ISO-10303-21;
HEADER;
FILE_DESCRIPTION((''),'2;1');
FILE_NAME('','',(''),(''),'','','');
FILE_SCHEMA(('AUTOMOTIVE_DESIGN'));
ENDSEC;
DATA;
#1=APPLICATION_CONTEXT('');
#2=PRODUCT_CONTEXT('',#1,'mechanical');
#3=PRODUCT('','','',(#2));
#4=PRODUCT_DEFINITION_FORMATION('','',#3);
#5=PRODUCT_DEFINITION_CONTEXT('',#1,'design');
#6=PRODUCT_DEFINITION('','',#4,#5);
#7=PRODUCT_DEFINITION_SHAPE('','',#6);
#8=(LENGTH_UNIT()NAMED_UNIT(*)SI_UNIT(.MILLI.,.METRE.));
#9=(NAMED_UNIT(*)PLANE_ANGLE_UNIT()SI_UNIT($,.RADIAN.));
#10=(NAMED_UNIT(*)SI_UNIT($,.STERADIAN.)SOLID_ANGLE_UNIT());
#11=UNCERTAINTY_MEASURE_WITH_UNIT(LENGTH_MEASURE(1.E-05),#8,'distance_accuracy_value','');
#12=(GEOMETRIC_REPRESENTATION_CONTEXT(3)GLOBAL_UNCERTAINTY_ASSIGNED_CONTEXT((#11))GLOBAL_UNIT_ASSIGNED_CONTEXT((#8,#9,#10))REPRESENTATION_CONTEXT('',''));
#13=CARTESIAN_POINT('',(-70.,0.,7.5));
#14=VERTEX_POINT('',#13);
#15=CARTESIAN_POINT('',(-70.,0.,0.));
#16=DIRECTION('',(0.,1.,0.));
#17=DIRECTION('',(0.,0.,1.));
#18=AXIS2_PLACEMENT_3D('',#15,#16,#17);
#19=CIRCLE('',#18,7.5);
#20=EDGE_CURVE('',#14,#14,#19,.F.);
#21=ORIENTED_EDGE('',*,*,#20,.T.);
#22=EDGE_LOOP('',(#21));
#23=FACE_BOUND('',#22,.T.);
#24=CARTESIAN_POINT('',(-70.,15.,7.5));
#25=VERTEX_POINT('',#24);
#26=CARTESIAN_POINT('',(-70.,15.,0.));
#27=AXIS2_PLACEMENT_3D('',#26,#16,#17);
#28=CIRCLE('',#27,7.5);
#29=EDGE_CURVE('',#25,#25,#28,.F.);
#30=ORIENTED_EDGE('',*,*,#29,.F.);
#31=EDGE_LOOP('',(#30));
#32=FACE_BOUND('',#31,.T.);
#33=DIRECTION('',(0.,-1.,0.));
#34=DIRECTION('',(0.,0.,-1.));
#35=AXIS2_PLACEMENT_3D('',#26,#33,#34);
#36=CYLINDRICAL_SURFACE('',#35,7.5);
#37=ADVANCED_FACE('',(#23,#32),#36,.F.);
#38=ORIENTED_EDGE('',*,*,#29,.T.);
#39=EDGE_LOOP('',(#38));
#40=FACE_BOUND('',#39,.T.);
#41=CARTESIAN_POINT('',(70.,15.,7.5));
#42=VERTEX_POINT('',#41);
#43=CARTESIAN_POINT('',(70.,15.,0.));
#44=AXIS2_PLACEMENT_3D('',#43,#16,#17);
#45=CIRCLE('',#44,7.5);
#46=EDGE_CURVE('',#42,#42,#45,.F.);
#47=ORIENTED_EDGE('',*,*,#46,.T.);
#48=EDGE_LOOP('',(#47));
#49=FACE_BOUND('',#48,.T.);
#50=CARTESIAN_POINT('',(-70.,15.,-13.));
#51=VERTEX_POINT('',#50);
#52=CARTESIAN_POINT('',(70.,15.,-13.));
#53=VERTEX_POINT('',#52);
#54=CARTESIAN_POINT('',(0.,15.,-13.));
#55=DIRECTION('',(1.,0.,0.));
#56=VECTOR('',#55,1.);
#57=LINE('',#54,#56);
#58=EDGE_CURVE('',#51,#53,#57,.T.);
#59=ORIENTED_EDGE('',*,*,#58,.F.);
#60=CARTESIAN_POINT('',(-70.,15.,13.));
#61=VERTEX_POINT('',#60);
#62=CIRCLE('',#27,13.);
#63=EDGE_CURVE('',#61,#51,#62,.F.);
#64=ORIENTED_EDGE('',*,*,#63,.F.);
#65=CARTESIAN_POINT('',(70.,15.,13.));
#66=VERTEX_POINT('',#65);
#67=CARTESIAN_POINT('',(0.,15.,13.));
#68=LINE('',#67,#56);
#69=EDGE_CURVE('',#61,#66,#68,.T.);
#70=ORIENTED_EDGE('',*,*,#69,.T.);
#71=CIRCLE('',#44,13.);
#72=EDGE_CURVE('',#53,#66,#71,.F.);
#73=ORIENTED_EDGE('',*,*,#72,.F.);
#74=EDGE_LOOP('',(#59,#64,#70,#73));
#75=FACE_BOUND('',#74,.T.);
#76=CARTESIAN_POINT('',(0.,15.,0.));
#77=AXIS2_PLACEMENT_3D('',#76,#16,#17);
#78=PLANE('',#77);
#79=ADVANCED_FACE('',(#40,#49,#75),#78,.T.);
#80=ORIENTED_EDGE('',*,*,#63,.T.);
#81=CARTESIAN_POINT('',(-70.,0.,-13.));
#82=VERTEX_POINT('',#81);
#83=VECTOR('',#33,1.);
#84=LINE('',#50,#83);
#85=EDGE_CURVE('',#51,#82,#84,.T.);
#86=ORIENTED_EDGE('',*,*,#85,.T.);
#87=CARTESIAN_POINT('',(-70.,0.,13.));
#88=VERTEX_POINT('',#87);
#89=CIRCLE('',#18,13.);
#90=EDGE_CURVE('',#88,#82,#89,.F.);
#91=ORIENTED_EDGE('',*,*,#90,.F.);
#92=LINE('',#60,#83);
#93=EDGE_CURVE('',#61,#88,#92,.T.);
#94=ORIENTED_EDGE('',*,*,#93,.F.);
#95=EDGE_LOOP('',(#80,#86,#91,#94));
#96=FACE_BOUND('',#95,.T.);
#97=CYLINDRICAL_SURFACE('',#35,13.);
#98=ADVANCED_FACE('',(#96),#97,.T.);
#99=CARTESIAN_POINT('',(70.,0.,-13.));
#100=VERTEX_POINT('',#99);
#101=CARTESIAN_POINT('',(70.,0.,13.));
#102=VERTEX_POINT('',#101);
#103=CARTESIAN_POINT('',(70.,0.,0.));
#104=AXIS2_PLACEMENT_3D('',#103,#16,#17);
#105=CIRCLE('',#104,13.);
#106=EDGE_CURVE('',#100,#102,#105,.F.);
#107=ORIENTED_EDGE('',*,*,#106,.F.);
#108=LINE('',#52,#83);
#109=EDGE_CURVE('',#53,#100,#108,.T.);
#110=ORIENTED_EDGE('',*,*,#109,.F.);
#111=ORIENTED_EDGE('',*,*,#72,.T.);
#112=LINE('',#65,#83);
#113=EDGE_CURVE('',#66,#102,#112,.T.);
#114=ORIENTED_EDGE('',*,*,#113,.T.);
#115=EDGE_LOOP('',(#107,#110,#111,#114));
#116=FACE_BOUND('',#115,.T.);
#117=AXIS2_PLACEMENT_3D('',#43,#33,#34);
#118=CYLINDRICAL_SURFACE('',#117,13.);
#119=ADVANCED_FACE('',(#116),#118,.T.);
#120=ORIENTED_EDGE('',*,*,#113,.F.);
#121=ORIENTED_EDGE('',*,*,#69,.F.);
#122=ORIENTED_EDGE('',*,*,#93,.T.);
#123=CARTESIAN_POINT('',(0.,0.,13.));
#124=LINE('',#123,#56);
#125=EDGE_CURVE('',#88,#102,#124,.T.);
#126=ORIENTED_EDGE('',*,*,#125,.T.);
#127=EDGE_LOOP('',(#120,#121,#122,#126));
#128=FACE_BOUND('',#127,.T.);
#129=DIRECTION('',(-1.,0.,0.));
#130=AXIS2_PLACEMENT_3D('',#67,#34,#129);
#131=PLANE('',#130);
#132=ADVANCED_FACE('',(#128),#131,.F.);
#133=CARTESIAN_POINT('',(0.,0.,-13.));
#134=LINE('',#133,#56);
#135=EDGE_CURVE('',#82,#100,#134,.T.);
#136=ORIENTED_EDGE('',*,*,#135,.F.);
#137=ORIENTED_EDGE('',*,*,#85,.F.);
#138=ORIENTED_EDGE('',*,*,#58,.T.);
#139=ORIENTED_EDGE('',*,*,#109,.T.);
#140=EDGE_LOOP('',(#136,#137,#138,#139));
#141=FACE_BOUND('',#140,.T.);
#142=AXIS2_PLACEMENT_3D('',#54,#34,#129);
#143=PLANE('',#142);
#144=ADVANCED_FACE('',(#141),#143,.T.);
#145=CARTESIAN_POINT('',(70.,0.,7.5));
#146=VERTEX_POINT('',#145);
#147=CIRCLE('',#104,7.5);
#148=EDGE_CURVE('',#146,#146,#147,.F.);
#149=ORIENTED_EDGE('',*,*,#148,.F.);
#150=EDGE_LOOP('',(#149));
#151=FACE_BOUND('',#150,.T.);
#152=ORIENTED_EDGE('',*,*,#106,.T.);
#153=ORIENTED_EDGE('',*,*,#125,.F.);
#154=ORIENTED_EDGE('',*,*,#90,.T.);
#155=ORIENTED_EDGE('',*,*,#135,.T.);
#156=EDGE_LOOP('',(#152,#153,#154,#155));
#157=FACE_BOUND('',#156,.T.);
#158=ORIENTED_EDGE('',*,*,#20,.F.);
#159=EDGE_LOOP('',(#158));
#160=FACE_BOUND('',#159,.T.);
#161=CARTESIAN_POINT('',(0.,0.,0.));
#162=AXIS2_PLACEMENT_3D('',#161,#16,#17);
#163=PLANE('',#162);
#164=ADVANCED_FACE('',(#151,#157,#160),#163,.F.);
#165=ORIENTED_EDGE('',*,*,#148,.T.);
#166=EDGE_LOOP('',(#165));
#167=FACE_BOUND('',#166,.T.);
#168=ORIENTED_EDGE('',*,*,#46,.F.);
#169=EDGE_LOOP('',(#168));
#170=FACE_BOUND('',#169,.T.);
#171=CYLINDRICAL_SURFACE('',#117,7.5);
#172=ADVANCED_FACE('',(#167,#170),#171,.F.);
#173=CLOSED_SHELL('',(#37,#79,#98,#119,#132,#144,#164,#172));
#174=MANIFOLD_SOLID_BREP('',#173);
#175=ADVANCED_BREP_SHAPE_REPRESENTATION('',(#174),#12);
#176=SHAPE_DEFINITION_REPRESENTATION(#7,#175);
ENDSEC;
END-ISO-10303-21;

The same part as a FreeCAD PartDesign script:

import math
import FreeCAD as App
import Part
import Sketcher

V = App.Vector
Q = App.Units.Quantity

doc = App.newDocument("Part")
body = doc.addObject("PartDesign::Body", "Body")

# Sketch on XZ plane
sketch1 = body.newObject("Sketcher::SketchObject", "Sketch")
sketch1.AttachmentSupport = (doc.getObject("XZ_Plane"), [""])
sketch1.MapMode = "FlatFace"
sketch1.addGeometry(Part.LineSegment(V(70, 13, 0), V(-70, 13, 0)), False)
sketch1.addGeometry(Part.ArcOfCircle(Part.Circle(V(-70, 0, 0), V(0, 0, 1), 13), math.radians(90), math.radians(270)), False)
sketch1.addGeometry(Part.LineSegment(V(-70, -13, 0), V(70, -13, 0)), False)
sketch1.addGeometry(Part.ArcOfCircle(Part.Circle(V(70, 0, 0), V(0, 0, 1), 13), math.radians(-90), math.radians(90)), False)
sketch1.addGeometry(Part.Circle(V(70, 0, 0), V(0, 0, 1), 8), False)
sketch1.addGeometry(Part.Circle(V(-70, 0, 0), V(0, 0, 1), 8), False)
sketch1.addConstraint(Sketcher.Constraint("Tangent", 0, 2, 1, 1))
sketch1.addConstraint(Sketcher.Constraint("Tangent", 1, 2, 2, 1))
sketch1.addConstraint(Sketcher.Constraint("Tangent", 2, 2, 3, 1))
sketch1.addConstraint(Sketcher.Constraint("Tangent", 3, 2, 0, 1))
sketch1.addConstraint(Sketcher.Constraint("Horizontal", 0))
sketch1.addConstraint(Sketcher.Constraint("Horizontal", 2))
sketch1.addConstraint(Sketcher.Constraint("Coincident", 4, 3, 3, 3))
sketch1.addConstraint(Sketcher.Constraint("Coincident", 5, 3, 1, 3))
sketch1.addConstraint(Sketcher.Constraint("Equal", 4, 5))
sketch1.addConstraint(Sketcher.Constraint("Symmetric", 1, 3, 3, 3, -1, 1))
sketch1.addConstraint(Sketcher.Constraint("Diameter", 4, Q("15 mm")))
sketch1.addConstraint(Sketcher.Constraint("Radius", 1, Q("13 mm")))
sketch1.addConstraint(Sketcher.Constraint("DistanceX", 0, 2, 0, 1, Q("140 mm")))
pad1 = body.newObject("PartDesign::Pad", "Pad")
pad1.Profile = sketch1
pad1.Length = 15
pad1.Reversed = True

doc.recompute()
